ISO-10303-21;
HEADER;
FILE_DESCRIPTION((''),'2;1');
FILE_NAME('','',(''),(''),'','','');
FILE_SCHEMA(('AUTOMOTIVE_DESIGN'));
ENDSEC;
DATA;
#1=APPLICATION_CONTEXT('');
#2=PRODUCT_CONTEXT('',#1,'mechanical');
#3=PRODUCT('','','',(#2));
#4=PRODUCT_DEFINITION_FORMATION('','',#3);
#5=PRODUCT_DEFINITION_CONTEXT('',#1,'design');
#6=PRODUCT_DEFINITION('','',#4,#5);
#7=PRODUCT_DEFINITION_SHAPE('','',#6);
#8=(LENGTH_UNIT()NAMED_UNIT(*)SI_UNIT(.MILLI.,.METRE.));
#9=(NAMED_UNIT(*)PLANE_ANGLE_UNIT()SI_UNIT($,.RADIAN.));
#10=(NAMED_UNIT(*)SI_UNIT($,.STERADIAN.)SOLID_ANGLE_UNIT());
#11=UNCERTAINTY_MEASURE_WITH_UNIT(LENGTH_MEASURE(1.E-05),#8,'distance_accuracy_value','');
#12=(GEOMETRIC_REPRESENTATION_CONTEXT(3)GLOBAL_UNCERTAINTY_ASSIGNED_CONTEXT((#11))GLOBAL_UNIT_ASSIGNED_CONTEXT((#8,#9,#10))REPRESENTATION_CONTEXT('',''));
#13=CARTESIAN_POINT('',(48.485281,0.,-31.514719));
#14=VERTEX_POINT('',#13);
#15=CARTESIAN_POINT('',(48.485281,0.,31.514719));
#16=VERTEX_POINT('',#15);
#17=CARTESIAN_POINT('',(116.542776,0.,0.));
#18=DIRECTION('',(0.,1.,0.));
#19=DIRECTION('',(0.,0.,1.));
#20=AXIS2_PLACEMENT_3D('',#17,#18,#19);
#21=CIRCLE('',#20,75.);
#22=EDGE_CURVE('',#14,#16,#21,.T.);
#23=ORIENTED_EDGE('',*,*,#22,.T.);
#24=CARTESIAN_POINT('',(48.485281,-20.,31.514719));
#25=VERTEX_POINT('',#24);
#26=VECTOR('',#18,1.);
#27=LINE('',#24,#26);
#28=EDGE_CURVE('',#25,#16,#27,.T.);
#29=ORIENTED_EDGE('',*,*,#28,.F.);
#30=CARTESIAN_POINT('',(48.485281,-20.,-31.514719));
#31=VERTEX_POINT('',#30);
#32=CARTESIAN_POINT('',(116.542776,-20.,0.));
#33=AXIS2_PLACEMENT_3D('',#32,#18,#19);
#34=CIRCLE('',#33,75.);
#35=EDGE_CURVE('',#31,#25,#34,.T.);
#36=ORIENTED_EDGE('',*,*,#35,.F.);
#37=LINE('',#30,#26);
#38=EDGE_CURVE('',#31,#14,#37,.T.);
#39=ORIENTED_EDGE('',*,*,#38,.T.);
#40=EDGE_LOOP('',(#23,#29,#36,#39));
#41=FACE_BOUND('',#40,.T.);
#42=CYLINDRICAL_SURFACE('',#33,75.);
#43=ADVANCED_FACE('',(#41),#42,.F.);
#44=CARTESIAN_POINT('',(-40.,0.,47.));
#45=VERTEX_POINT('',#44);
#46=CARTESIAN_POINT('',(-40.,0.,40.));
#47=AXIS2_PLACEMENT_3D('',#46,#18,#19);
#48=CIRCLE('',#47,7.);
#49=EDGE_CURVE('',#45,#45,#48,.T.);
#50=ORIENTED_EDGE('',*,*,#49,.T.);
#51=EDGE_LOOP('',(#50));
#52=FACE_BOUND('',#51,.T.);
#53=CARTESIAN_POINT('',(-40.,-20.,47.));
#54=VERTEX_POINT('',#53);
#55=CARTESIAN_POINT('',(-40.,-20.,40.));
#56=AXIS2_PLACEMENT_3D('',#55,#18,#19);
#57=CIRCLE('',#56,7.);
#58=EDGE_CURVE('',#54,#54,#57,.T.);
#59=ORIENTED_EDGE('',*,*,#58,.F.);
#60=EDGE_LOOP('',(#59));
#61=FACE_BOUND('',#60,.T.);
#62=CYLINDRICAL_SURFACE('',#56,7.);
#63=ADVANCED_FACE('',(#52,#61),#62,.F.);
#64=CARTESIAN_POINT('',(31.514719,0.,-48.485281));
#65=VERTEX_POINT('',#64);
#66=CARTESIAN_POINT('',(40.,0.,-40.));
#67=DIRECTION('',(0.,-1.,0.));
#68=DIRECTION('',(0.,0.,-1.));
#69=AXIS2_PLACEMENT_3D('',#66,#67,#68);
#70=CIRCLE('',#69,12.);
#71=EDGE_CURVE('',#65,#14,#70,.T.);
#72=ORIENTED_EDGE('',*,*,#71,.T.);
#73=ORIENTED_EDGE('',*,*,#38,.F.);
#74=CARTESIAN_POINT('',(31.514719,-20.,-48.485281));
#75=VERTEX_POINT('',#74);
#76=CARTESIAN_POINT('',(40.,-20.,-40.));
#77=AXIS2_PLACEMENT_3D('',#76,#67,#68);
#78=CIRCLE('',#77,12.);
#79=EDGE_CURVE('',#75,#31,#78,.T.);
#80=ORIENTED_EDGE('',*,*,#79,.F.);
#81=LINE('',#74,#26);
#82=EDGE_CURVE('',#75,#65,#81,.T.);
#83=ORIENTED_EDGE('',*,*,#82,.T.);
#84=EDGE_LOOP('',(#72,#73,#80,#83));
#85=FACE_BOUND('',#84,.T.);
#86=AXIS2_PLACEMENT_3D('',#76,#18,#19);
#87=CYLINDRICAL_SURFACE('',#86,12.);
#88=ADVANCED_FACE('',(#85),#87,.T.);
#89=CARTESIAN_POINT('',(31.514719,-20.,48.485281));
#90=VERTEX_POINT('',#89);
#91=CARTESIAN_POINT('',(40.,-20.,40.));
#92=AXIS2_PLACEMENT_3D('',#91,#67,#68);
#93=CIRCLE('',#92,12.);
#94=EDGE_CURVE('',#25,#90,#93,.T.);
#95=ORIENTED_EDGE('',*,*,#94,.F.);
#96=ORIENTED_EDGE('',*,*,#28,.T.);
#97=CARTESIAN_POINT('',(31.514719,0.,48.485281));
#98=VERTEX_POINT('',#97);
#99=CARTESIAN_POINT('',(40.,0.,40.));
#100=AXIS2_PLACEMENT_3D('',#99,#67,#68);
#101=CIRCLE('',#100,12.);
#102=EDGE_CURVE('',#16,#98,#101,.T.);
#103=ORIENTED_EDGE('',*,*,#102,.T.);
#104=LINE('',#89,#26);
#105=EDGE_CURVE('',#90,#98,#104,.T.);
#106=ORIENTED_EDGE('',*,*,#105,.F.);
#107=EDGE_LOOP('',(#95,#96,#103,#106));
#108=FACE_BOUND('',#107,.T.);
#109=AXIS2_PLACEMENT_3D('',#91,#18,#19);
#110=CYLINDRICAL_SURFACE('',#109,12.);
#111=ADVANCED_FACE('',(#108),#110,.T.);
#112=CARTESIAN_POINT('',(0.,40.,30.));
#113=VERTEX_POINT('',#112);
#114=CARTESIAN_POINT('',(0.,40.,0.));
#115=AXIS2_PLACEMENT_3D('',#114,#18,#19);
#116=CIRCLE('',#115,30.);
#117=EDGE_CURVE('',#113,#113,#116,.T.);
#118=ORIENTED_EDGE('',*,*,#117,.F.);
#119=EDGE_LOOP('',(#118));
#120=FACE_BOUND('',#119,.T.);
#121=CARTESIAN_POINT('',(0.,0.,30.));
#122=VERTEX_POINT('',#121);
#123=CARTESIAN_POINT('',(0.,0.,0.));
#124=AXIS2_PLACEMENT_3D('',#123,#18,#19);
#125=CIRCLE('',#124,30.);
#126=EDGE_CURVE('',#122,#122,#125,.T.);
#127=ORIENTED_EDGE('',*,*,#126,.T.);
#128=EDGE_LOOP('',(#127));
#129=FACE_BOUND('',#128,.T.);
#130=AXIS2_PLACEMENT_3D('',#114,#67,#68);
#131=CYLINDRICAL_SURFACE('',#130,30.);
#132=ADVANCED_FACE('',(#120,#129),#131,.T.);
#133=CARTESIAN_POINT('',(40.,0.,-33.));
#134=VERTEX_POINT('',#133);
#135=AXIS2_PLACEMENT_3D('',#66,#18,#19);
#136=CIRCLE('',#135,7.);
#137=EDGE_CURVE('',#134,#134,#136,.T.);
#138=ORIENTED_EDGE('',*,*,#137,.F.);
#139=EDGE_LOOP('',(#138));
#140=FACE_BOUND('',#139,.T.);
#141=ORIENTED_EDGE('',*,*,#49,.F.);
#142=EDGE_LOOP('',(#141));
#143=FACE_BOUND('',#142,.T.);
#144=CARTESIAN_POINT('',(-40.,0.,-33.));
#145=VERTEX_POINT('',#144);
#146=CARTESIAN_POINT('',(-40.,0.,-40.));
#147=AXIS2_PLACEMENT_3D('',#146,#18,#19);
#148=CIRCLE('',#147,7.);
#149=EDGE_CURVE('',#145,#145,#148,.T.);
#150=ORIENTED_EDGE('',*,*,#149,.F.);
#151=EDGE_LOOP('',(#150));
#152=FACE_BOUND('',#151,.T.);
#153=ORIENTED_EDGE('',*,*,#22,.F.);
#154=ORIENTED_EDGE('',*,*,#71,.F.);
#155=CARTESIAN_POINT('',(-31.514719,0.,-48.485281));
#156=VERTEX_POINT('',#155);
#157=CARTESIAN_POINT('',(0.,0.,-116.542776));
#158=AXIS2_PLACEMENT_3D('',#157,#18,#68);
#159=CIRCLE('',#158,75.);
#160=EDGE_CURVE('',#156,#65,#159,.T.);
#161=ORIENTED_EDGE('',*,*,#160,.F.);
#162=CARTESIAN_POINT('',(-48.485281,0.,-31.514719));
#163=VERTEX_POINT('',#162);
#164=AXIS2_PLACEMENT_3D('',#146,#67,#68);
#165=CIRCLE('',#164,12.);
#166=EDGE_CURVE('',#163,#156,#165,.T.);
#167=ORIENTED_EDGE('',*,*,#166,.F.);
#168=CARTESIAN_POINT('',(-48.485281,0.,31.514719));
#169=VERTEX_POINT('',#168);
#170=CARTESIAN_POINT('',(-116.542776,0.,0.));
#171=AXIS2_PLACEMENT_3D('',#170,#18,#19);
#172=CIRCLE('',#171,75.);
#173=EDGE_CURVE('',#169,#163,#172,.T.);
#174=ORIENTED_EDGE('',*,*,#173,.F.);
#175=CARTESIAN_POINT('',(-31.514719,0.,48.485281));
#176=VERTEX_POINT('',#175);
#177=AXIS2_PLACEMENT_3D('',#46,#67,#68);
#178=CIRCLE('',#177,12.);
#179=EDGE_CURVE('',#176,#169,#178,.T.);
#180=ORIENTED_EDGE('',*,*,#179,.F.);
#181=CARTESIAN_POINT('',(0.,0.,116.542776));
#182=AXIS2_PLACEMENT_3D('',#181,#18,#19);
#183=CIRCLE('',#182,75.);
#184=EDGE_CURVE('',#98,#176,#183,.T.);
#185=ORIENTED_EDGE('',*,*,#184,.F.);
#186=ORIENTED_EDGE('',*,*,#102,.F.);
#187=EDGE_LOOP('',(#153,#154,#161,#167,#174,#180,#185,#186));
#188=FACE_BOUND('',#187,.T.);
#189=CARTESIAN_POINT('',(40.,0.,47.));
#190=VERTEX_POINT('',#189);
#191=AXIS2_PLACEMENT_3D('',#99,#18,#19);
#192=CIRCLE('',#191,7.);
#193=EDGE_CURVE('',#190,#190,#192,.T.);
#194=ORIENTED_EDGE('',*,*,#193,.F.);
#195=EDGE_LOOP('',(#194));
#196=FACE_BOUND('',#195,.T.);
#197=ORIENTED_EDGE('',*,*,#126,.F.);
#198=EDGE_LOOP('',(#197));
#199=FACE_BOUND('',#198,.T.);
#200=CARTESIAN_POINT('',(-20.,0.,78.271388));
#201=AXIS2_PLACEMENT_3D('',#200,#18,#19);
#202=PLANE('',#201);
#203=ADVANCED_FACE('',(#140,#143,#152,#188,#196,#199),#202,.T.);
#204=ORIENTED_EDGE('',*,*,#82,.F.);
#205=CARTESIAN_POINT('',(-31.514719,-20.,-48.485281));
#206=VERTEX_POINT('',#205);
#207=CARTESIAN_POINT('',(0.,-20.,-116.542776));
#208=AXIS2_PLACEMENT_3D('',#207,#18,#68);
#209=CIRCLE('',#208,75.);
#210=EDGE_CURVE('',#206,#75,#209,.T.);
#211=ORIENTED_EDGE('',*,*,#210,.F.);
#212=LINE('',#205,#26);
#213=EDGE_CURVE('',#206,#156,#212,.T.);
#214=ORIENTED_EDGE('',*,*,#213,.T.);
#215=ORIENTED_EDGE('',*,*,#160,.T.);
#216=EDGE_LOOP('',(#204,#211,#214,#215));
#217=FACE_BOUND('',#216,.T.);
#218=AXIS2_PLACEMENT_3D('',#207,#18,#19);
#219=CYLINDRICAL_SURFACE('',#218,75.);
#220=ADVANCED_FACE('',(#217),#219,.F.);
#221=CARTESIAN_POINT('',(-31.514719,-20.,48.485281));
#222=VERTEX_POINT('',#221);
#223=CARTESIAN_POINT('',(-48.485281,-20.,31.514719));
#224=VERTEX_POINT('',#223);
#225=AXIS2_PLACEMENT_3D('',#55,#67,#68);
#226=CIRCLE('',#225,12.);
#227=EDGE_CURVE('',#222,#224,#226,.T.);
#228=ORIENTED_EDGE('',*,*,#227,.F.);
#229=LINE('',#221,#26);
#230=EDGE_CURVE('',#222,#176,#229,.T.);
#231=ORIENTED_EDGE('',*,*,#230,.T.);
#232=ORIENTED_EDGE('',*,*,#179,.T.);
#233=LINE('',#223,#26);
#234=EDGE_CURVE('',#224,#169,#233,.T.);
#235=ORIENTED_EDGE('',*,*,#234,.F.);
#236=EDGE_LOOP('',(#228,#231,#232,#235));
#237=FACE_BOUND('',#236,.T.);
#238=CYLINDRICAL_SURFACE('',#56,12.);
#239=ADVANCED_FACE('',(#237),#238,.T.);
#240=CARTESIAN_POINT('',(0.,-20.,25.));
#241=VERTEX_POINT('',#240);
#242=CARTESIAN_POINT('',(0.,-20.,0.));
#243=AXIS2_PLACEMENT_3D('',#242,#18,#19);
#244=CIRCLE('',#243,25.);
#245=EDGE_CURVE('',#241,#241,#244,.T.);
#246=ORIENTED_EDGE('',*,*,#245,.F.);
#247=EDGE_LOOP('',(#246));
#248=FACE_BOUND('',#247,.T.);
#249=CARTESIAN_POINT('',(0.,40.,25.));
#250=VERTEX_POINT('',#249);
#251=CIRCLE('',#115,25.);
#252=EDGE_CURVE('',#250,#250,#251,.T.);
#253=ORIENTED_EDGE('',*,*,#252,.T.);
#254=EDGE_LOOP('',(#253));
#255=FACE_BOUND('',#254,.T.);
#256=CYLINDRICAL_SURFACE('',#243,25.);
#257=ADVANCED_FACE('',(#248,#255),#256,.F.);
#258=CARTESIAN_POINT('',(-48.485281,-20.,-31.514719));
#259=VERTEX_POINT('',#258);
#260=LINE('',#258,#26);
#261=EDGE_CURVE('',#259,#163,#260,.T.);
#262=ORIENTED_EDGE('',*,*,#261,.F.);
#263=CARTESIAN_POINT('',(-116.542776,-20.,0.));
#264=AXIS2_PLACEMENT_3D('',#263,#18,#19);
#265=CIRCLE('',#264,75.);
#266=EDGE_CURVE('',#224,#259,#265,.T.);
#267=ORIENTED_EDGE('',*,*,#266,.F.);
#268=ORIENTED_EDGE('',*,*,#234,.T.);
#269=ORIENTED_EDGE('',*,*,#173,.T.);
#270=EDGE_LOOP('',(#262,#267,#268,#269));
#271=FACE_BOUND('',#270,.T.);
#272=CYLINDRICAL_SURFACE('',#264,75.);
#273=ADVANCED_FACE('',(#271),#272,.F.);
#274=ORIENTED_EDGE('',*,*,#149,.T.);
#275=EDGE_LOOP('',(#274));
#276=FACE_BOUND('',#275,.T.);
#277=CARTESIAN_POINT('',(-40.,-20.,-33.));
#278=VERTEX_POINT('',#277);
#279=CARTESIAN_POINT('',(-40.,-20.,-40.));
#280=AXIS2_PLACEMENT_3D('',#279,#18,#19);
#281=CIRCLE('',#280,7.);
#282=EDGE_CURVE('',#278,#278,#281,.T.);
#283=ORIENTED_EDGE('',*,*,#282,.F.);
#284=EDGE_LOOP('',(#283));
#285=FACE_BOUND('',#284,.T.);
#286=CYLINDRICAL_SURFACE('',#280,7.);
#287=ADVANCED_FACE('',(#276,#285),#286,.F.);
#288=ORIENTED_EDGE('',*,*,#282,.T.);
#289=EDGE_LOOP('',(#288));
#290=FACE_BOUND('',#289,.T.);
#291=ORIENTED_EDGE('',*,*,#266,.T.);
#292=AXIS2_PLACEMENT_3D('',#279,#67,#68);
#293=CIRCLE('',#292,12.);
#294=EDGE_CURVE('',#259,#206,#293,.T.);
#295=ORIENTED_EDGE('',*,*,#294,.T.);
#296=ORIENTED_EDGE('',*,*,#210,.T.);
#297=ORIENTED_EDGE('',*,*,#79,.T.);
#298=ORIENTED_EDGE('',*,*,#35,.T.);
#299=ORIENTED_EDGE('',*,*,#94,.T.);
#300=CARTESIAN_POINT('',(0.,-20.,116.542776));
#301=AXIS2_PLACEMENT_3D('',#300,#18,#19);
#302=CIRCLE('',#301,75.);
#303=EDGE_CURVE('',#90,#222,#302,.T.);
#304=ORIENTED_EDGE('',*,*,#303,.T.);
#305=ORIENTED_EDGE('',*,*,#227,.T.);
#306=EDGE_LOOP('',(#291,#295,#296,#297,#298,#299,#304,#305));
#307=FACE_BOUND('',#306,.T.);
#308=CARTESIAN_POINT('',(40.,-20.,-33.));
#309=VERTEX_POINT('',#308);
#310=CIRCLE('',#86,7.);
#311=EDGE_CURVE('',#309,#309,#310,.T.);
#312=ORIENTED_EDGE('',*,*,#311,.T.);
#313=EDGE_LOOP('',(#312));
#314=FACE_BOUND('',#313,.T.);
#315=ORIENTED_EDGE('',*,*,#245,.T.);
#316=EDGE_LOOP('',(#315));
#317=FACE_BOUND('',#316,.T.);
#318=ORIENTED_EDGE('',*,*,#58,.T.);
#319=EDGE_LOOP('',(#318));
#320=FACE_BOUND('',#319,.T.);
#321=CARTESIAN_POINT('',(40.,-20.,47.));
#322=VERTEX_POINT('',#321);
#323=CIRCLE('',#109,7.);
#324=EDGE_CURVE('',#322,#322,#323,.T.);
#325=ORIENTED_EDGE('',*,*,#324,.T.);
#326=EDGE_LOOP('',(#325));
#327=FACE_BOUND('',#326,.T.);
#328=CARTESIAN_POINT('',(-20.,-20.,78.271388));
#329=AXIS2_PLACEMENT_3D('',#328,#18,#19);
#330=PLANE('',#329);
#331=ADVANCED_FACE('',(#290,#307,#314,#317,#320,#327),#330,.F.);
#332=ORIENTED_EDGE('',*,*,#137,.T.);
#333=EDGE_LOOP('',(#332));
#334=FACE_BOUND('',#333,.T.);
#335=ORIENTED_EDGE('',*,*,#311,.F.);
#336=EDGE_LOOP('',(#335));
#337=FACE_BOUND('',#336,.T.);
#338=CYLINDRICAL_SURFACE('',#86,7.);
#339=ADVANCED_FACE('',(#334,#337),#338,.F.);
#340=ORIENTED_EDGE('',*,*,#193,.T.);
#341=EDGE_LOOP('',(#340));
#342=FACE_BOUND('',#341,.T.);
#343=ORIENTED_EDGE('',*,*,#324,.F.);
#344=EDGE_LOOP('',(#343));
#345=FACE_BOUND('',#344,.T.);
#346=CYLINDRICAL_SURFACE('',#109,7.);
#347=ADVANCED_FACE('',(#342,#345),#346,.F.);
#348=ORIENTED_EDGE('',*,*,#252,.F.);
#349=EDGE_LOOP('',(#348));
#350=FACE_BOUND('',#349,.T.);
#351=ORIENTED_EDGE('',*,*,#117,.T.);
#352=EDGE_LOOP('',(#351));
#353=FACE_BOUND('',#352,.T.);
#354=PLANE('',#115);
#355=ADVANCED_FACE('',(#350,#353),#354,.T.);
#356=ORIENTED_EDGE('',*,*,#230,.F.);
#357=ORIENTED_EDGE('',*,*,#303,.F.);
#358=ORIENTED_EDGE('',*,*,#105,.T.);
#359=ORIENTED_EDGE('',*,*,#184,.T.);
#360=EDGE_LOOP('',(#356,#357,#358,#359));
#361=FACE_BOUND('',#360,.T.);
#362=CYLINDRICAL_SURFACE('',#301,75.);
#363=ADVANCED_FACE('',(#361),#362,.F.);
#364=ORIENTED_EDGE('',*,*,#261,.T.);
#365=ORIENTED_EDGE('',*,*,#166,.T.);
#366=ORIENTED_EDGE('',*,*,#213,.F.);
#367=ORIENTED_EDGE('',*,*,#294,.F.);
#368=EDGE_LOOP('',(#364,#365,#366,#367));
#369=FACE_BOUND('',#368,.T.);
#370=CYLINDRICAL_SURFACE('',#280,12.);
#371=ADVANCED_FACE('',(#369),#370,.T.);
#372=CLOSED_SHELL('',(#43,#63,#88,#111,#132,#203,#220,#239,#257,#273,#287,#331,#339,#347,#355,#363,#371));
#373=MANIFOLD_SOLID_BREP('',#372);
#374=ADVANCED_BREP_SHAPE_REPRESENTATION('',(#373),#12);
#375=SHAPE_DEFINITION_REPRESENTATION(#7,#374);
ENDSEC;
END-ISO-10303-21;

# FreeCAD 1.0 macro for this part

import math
import FreeCAD as App
import Part
import Sketcher

doc = App.newDocument("Part")
params = doc.addObject("Spreadsheet::Sheet", "Params")
for row, (alias, value) in enumerate([
    ("sketch1_diameter", "60 mm"),
    ("pad1_length", "40 mm"),
    ("sketch2_radius", "12 mm"),
    ("sketch2_radius2", "75 mm"),
    ("pad2_length", "20 mm"),
    ("sketch3_diameter", "14 mm"),
    ("sketch4_diameter", "50 mm"),
], start=1):
    params.set(f"A{row}", alias)
    params.set(f"B{row}", "=" + value)
    params.setAlias(f"B{row}", alias)

body = doc.addObject("PartDesign::Body", "Body")

sketch1 = body.newObject("Sketcher::SketchObject", "Sketch")
sketch1.AttachmentSupport = (doc.getObject("XZ_Plane"), [""])
sketch1.MapMode = "FlatFace"
sketch1.addGeometry(Part.Circle(App.Vector(0, 0, 0), App.Vector(0, 0, 1), 30), False)
sketch1.addConstraint(Sketcher.Constraint("Coincident", 0, 3, -1, 1))
sketch1.addConstraint(Sketcher.Constraint("Diameter", 0, 60.0))
sketch1.setExpression("Constraints[1]", "Params.sketch1_diameter")
pad1 = body.newObject("PartDesign::Pad", "Pad")
pad1.Profile = sketch1
pad1.setExpression("Length", "Params.pad1_length")
pad1.Reversed = True

sketch2 = body.newObject("Sketcher::SketchObject", "Sketch001")
sketch2.AttachmentSupport = (doc.getObject("XZ_Plane"), [""])
sketch2.MapMode = "FlatFace"
sketch2.addGeometry(Part.ArcOfCircle(Part.Circle(App.Vector(-40, -40, 0), App.Vector(0, 0, 1), 12), math.radians(135), math.radians(315)), False)
sketch2.addGeometry(Part.ArcOfCircle(Part.Circle(App.Vector(0, -117, 0), App.Vector(0, 0, 1), 75), math.radians(65), math.radians(115)), False)
sketch2.addGeometry(Part.ArcOfCircle(Part.Circle(App.Vector(40, -40, 0), App.Vector(0, 0, 1), 12), math.radians(-135), math.radians(45)), False)
sketch2.addGeometry(Part.ArcOfCircle(Part.Circle(App.Vector(117, 0, 0), App.Vector(0, 0, 1), 75), math.radians(155), math.radians(205)), False)
sketch2.addGeometry(Part.ArcOfCircle(Part.Circle(App.Vector(40, 40, 0), App.Vector(0, 0, 1), 12), math.radians(-45), math.radians(135)), False)
sketch2.addGeometry(Part.ArcOfCircle(Part.Circle(App.Vector(0, 117, 0), App.Vector(0, 0, 1), 75), math.radians(-115), math.radians(-65)), False)
sketch2.addGeometry(Part.ArcOfCircle(Part.Circle(App.Vector(-40, 40, 0), App.Vector(0, 0, 1), 12), math.radians(45), math.radians(225)), False)
sketch2.addGeometry(Part.ArcOfCircle(Part.Circle(App.Vector(-117, 0, 0), App.Vector(0, 0, 1), 75), math.radians(-25), math.radians(25)), False)
sketch2.addConstraint(Sketcher.Constraint("Coincident", 0, 2, 1, 2))
sketch2.addConstraint(Sketcher.Constraint("Coincident", 1, 1, 2, 1))
sketch2.addConstraint(Sketcher.Constraint("Coincident", 2, 2, 3, 2))
sketch2.addConstraint(Sketcher.Constraint("Coincident", 3, 1, 4, 1))
sketch2.addConstraint(Sketcher.Constraint("Coincident", 4, 2, 5, 2))
sketch2.addConstraint(Sketcher.Constraint("Coincident", 5, 1, 6, 1))
sketch2.addConstraint(Sketcher.Constraint("Coincident", 6, 2, 7, 2))
sketch2.addConstraint(Sketcher.Constraint("Coincident", 7, 1, 0, 1))
sketch2.addConstraint(Sketcher.Constraint("Equal", 0, 2))
sketch2.addConstraint(Sketcher.Constraint("Equal", 1, 3))
sketch2.addConstraint(Sketcher.Constraint("Equal", 2, 4))
sketch2.addConstraint(Sketcher.Constraint("Equal", 3, 5))
sketch2.addConstraint(Sketcher.Constraint("Equal", 4, 6))
sketch2.addConstraint(Sketcher.Constraint("Equal", 5, 7))
sketch2.addConstraint(Sketcher.Constraint("Symmetric", 0, 3, 4, 3, -1, 1))
sketch2.addConstraint(Sketcher.Constraint("Symmetric", 1, 3, 5, 3, -1, 1))
sketch2.addConstraint(Sketcher.Constraint("Symmetric", 2, 3, 6, 3, -1, 1))
sketch2.addConstraint(Sketcher.Constraint("Symmetric", 3, 3, 7, 3, -1, 1))
sketch2.addConstraint(Sketcher.Constraint("Symmetric", 0, 3, 2, 3, -2))
sketch2.addConstraint(Sketcher.Constraint("PointOnObject", 1, 3, -2))
sketch2.addConstraint(Sketcher.Constraint("PointOnObject", 3, 3, -1))
sketch2.addConstraint(Sketcher.Constraint("Radius", 0, 12.0))
sketch2.addConstraint(Sketcher.Constraint("Radius", 1, 75.0))
sketch2.addConstraint(Sketcher.Constraint("DistanceX", 0, 3, -1, 1, 40.0))
sketch2.addConstraint(Sketcher.Constraint("DistanceY", 0, 3, -1, 1, 40.0))
sketch2.addConstraint(Sketcher.Constraint("DistanceX", 0, 2, 2, 2, 80.0))
sketch2.addConstraint(Sketcher.Constraint("DistanceX", 0, 2, -1, 1, 31.514719))
sketch2.setExpression("Constraints[21]", "Params.sketch2_radius")
sketch2.setExpression("Constraints[22]", "Params.sketch2_radius2")
pad2 = body.newObject("PartDesign::Pad", "Pad001")
pad2.Profile = sketch2
pad2.setExpression("Length", "Params.pad2_length")

sketch3 = body.newObject("Sketcher::SketchObject", "Sketch002")
sketch3.AttachmentSupport = (doc.getObject("XZ_Plane"), [""])
sketch3.MapMode = "FlatFace"
sketch3.addGeometry(Part.Circle(App.Vector(-40, -40, 0), App.Vector(0, 0, 1), 7), False)
sketch3.addGeometry(Part.Circle(App.Vector(40, 40, 0), App.Vector(0, 0, 1), 7), False)
sketch3.addGeometry(Part.Circle(App.Vector(40, -40, 0), App.Vector(0, 0, 1), 7), False)
sketch3.addGeometry(Part.Circle(App.Vector(-40, 40, 0), App.Vector(0, 0, 1), 7), False)
sketch3.addConstraint(Sketcher.Constraint("Equal", 0, 1))
sketch3.addConstraint(Sketcher.Constraint("Equal", 1, 2))
sketch3.addConstraint(Sketcher.Constraint("Equal", 2, 3))
sketch3.addConstraint(Sketcher.Constraint("Symmetric", 0, 3, 1, 3, -1, 1))
sketch3.addConstraint(Sketcher.Constraint("Symmetric", 2, 3, 3, 3, -1, 1))
sketch3.addConstraint(Sketcher.Constraint("Symmetric", 0, 3, 2, 3, -2))
sketch3.addConstraint(Sketcher.Constraint("Diameter", 0, 14.0))
sketch3.addConstraint(Sketcher.Constraint("DistanceX", 0, 3, -1, 1, 40.0))
sketch3.addConstraint(Sketcher.Constraint("DistanceY", 0, 3, -1, 1, 40.0))
sketch3.setExpression("Constraints[6]", "Params.sketch3_diameter")
pocket1 = body.newObject("PartDesign::Pocket", "Pocket")
pocket1.Profile = sketch3
pocket1.Type = "ThroughAll"
pocket1.Reversed = True

sketch4 = body.newObject("Sketcher::SketchObject", "Sketch003")
sketch4.AttachmentSupport = (doc.getObject("XZ_Plane"), [""])
sketch4.MapMode = "FlatFace"
sketch4.AttachmentOffset = App.Placement(App.Vector(0, 0, -40), App.Rotation())
sketch4.addGeometry(Part.Circle(App.Vector(0, 0, 0), App.Vector(0, 0, 1), 25), False)
sketch4.addConstraint(Sketcher.Constraint("Coincident", 0, 3, -1, 1))
sketch4.addConstraint(Sketcher.Constraint("Diameter", 0, 50.0))
sketch4.setExpression("Constraints[1]", "Params.sketch4_diameter")
pocket2 = body.newObject("PartDesign::Pocket", "Pocket001")
pocket2.Profile = sketch4
pocket2.Type = "ThroughAll"
pocket2.Reversed = True

doc.recompute()
